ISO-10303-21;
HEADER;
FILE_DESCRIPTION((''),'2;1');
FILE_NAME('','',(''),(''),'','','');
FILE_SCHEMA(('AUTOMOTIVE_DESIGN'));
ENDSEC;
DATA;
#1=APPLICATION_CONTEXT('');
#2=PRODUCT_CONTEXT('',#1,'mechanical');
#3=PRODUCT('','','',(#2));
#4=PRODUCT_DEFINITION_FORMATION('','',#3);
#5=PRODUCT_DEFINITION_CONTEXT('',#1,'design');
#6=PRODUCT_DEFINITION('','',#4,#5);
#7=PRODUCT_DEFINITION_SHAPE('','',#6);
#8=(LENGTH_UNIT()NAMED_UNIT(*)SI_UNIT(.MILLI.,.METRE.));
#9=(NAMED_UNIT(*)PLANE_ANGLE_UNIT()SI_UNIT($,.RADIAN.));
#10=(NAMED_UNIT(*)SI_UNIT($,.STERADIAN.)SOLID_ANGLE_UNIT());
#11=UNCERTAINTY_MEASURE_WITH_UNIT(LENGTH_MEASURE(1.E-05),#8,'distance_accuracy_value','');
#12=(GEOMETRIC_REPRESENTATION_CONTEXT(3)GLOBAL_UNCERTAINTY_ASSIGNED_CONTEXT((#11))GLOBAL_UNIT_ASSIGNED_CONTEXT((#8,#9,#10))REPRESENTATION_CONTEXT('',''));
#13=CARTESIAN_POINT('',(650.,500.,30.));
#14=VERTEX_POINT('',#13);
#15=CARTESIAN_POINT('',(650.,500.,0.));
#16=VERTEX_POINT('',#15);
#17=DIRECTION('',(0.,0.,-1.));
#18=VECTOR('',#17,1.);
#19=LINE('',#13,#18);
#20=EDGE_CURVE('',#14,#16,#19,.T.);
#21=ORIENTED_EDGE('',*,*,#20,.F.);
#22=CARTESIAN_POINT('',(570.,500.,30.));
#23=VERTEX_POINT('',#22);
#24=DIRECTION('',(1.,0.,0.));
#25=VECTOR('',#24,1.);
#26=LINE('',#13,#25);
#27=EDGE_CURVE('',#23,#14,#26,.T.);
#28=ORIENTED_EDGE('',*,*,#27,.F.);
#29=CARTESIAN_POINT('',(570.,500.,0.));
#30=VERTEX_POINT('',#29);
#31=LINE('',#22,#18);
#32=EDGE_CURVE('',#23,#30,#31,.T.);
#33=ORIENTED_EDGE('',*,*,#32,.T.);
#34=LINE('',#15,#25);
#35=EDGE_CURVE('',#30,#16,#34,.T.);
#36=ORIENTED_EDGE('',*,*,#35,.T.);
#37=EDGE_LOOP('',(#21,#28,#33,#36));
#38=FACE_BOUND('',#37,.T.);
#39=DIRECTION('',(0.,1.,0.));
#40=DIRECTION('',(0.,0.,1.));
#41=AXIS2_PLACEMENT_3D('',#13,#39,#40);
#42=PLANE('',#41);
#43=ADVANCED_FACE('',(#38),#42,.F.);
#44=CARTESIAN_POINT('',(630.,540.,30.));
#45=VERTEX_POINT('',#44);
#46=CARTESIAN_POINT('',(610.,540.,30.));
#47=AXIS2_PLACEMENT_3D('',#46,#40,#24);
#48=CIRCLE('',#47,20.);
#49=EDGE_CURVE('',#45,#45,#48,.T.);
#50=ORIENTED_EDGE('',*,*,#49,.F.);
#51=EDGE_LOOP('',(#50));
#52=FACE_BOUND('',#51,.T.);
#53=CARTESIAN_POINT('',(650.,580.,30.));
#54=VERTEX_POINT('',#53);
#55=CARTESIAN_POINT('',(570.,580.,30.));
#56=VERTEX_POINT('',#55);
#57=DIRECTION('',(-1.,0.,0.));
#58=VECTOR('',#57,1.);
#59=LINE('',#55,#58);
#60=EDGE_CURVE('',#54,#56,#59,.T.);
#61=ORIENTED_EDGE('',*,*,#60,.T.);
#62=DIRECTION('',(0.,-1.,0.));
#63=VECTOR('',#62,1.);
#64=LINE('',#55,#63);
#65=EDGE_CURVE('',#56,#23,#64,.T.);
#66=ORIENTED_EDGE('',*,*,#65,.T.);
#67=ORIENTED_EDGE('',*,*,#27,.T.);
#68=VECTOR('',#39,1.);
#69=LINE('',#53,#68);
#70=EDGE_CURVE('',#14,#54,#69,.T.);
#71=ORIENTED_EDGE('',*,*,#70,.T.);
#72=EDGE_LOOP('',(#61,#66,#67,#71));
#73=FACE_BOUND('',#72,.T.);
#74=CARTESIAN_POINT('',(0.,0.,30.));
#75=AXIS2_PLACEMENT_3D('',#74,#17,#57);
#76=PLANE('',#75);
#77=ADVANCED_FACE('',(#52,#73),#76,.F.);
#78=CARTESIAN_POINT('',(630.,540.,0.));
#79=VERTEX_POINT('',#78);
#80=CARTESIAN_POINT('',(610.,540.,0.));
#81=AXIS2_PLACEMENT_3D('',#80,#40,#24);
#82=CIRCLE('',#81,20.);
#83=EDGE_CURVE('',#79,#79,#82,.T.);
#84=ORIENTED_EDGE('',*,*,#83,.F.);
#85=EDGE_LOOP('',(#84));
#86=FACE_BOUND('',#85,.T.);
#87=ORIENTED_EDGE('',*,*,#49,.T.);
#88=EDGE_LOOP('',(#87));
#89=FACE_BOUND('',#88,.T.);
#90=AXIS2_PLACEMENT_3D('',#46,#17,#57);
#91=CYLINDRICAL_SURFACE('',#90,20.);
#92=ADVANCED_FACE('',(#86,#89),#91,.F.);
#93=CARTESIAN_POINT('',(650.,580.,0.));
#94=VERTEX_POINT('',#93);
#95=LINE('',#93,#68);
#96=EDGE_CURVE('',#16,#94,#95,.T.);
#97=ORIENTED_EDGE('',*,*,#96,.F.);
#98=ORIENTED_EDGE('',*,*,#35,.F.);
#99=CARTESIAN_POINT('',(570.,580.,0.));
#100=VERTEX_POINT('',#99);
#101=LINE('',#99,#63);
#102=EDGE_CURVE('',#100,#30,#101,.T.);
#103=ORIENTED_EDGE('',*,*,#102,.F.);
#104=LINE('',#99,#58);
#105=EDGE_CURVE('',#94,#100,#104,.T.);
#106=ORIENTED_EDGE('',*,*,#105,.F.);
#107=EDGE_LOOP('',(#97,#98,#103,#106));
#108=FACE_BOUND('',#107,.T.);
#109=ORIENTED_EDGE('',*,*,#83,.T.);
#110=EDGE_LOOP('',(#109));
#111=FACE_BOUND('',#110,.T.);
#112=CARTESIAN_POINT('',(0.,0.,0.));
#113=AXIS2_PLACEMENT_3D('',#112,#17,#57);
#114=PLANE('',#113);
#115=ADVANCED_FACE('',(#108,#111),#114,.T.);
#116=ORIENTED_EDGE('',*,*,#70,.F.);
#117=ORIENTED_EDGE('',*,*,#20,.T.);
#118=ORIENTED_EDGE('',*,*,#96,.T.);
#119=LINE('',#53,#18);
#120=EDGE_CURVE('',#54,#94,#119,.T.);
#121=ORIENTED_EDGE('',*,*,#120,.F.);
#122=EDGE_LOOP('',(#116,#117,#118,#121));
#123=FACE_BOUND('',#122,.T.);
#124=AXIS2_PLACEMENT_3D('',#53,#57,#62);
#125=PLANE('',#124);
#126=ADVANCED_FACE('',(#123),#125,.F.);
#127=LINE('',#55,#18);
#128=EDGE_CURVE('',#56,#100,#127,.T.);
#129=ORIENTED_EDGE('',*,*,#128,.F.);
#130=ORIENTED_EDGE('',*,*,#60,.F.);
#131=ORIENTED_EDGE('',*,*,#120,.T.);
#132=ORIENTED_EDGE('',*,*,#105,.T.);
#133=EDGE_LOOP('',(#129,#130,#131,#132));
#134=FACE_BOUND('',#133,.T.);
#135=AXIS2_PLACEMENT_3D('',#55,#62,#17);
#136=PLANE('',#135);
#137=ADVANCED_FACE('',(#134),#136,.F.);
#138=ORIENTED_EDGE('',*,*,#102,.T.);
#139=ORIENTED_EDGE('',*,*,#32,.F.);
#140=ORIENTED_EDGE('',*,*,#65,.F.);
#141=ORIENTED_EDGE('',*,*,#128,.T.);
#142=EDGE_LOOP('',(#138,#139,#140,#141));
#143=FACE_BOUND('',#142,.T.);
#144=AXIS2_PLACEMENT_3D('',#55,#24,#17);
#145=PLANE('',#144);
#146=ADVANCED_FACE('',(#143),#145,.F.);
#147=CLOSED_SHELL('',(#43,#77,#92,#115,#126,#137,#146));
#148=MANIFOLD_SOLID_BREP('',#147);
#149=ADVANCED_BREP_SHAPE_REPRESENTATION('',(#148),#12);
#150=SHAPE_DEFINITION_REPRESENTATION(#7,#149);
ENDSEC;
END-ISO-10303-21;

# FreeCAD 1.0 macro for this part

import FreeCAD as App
import Part
import Sketcher

V = App.Vector
Q = App.Units.Quantity


def add_polygon(sketch, points):
    """Adds a closed chain of lines whose ends are joined by coincident constraints."""
    first, n = sketch.GeometryCount, len(points)
    for a, b in zip(points, points[1:] + points[:1]):
        sketch.addGeometry(Part.LineSegment(App.Vector(*a, 0), App.Vector(*b, 0)), False)
    for i in range(n):
        sketch.addConstraint(Sketcher.Constraint("Coincident", first + i, 2, first + (i + 1) % n, 1))

doc = App.newDocument("Part")
body = doc.addObject("PartDesign::Body", "Body")

sketch1 = doc.addObject("Sketcher::SketchObject", "Sketch")
body.addObject(sketch1)
sketch1.AttachmentSupport = (doc.XY_Plane, [""])
sketch1.MapMode = "FlatFace"
add_polygon(sketch1, [(570, 580), (570, 500), (650, 500), (650, 580)])
sketch1.addGeometry(Part.Circle(V(610, 540, 0), V(0, 0, 1), 20), False)
sketch1.addConstraint([
    Sketcher.Constraint("Vertical", 0),
    Sketcher.Constraint("Horizontal", 1),
    Sketcher.Constraint("Vertical", 2),
    Sketcher.Constraint("Horizontal", 3),
    Sketcher.Constraint("Equal", 3, 0),
    Sketcher.Constraint("Diameter", 4, Q("40 mm")),
    Sketcher.Constraint("DistanceX", 1, 1, 1, 2, Q("80 mm")),
    Sketcher.Constraint("DistanceX", -1, 1, 4, 3, Q("610 mm")),
    Sketcher.Constraint("DistanceY", -1, 1, 4, 3, Q("540 mm")),
    Sketcher.Constraint("DistanceX", -1, 1, 0, 2, Q("570 mm")),
    Sketcher.Constraint("DistanceY", -1, 1, 0, 2, Q("500 mm")),
])
pad1 = doc.addObject("PartDesign::Pad", "Pad")
body.addObject(pad1)
pad1.Profile = sketch1
pad1.Length = 30

doc.recompute()
